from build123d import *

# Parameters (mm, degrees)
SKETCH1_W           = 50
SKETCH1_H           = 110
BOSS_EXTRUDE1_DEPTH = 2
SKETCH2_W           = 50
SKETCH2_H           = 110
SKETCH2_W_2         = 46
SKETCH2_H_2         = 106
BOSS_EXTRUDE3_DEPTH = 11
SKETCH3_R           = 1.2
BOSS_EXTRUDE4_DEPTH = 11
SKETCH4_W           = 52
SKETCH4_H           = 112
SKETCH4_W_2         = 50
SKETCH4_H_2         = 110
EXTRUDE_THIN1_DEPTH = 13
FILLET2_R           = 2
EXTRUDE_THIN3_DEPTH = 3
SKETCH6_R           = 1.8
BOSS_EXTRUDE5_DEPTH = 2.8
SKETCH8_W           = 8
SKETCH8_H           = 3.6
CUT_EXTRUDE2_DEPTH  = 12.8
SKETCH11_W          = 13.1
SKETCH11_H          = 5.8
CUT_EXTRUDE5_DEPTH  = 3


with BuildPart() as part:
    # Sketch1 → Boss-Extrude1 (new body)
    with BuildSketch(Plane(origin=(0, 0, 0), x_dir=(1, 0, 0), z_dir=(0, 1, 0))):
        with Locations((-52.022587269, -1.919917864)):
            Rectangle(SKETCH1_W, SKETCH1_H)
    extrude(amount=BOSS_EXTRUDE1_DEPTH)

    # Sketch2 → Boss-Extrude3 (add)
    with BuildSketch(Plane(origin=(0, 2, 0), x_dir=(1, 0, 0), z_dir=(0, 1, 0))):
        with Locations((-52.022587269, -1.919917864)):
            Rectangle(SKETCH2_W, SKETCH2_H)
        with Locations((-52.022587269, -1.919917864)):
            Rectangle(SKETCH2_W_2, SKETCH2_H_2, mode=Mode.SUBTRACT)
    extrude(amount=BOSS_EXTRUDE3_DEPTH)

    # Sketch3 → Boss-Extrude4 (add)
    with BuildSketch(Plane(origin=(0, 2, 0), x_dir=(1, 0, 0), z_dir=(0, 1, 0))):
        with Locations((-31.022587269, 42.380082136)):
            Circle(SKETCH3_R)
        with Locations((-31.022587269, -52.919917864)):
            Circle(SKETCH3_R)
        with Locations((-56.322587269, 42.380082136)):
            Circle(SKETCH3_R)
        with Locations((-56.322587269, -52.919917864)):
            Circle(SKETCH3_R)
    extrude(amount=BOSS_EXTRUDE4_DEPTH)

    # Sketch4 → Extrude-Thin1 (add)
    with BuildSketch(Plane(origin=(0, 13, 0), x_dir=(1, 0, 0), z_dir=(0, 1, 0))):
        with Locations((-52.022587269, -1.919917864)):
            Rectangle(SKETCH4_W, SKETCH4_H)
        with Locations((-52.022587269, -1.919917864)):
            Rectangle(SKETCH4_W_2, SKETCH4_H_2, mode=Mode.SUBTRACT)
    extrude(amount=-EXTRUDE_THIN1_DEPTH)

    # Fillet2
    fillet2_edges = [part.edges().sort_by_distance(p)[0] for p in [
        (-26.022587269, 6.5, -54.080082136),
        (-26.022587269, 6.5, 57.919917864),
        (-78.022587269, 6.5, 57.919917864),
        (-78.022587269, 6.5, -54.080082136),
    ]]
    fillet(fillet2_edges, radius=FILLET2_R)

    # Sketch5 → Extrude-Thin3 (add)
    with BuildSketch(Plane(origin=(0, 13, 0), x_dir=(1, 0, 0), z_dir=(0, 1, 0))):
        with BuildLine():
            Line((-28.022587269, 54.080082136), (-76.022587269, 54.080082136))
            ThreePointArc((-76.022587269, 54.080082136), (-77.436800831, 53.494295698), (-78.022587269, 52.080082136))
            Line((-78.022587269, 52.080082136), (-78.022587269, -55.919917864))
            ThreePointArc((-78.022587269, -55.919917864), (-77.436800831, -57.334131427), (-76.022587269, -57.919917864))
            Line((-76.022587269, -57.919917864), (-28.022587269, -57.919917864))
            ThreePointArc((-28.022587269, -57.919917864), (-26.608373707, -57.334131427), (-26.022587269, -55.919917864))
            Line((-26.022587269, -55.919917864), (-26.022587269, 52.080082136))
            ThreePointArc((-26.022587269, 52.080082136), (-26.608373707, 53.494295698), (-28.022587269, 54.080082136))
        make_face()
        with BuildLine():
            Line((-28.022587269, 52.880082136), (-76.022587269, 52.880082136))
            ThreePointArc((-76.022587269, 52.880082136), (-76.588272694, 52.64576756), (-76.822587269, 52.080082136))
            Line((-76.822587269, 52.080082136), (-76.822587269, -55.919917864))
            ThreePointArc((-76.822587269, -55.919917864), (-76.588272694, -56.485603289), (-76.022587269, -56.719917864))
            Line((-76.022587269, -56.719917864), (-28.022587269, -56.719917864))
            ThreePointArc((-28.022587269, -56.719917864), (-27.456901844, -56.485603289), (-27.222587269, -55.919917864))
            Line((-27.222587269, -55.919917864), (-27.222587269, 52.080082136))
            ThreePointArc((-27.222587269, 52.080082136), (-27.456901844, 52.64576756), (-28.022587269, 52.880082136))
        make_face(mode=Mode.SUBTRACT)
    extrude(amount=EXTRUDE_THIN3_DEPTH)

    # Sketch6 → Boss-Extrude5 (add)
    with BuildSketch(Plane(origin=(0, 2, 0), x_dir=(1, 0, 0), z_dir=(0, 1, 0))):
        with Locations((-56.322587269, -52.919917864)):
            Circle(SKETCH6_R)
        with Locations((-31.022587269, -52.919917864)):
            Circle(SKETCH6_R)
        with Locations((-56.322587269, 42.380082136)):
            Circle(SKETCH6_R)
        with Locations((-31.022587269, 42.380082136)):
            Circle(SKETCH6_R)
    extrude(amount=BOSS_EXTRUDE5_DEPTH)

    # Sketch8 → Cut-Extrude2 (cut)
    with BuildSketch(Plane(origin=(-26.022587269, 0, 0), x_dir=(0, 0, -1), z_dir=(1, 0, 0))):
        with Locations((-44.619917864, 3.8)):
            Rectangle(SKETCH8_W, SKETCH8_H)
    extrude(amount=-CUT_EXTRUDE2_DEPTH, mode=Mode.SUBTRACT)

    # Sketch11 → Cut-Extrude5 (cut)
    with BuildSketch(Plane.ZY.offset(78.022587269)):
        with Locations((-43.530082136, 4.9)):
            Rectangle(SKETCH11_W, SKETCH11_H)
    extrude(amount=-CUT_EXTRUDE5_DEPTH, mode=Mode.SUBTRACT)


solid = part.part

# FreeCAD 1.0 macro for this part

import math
import FreeCAD as App
import Part
import Sketcher
from FreeCAD import Vector


def edges_at(feature, points):
    """Names of the edges that pass closest to the given points."""
    edges = feature.Shape.Edges
    near = lambda p: min(range(len(edges)), key=lambda i: edges[i].distToShape(Part.Vertex(*p))[0])
    return sorted({f"Edge{near(p) + 1}" for p in points})


def add_polygon(sketch, points):
    """Adds a closed chain of lines whose ends are joined by coincident constraints."""
    first, n = sketch.GeometryCount, len(points)
    for a, b in zip(points, points[1:] + points[:1]):
        sketch.addGeometry(Part.LineSegment(App.Vector(*a, 0), App.Vector(*b, 0)), False)
    for i in range(n):
        sketch.addConstraint(Sketcher.Constraint("Coincident", first + i, 2, first + (i + 1) % n, 1))

doc = App.newDocument("Part")
body = doc.addObject("PartDesign::Body", "Body")

sketch1 = doc.addObject("Sketcher::SketchObject", "Sketch")
body.addObject(sketch1)
sketch1.AttachmentSupport = (doc.XZ_Plane, [""])
sketch1.MapMode = "FlatFace"
add_polygon(sketch1, [(-77, -53), (-77, 57), (-27, 57), (-27, -53)])
sketch1.addConstraint(Sketcher.Constraint("Vertical", 0))
sketch1.addConstraint(Sketcher.Constraint("Horizontal", 1))
sketch1.addConstraint(Sketcher.Constraint("Vertical", 2))
sketch1.addConstraint(Sketcher.Constraint("Horizontal", 3))
sketch1.addConstraint(Sketcher.Constraint("DistanceX", 1, 1, 1, 2, 50.0))
sketch1.addConstraint(Sketcher.Constraint("DistanceY", 0, 1, 0, 2, 110.0))
sketch1.addConstraint(Sketcher.Constraint("DistanceX", 0, 2, -1, 1, 77.022587))
sketch1.addConstraint(Sketcher.Constraint("DistanceY", -1, 1, 0, 2, 56.919918))
pad1 = doc.addObject("PartDesign::Pad", "Pad")
body.addObject(pad1)
pad1.Profile = sketch1
pad1.Length = 2
pad1.Reversed = True

sketch2 = doc.addObject("Sketcher::SketchObject", "Sketch001")
body.addObject(sketch2)
sketch2.AttachmentSupport = (doc.XZ_Plane, [""])
sketch2.MapMode = "FlatFace"
sketch2.AttachmentOffset = App.Placement(Vector(0, 0, -2), App.Rotation())
add_polygon(sketch2, [(-77, -53), (-77, 57), (-27, 57), (-27, -53)])
add_polygon(sketch2, [(-29, 55), (-75, 55), (-75, -51), (-29, -51)])
sketch2.addConstraint(Sketcher.Constraint("Vertical", 0))
sketch2.addConstraint(Sketcher.Constraint("Horizontal", 1))
sketch2.addConstraint(Sketcher.Constraint("Vertical", 2))
sketch2.addConstraint(Sketcher.Constraint("Horizontal", 3))
sketch2.addConstraint(Sketcher.Constraint("Horizontal", 4))
sketch2.addConstraint(Sketcher.Constraint("Vertical", 5))
sketch2.addConstraint(Sketcher.Constraint("Horizontal", 6))
sketch2.addConstraint(Sketcher.Constraint("Vertical", 7))
sketch2.addConstraint(Sketcher.Constraint("DistanceX", 1, 1, 1, 2, 50.0))
sketch2.addConstraint(Sketcher.Constraint("DistanceX", 4, 2, 4, 1, 46.0))
sketch2.addConstraint(Sketcher.Constraint("DistanceY", 0, 1, 0, 2, 110.0))
sketch2.addConstraint(Sketcher.Constraint("DistanceY", 5, 2, 5, 1, 106.0))
sketch2.addConstraint(Sketcher.Constraint("DistanceX", 0, 2, 4, 2, 2.0))
sketch2.addConstraint(Sketcher.Constraint("DistanceY", 4, 2, 0, 2, 2.0))
sketch2.addConstraint(Sketcher.Constraint("DistanceX", 0, 2, -1, 1, 77.022587))
sketch2.addConstraint(Sketcher.Constraint("DistanceY", -1, 1, 0, 2, 56.919918))
pad2 = doc.addObject("PartDesign::Pad", "Pad001")
body.addObject(pad2)
pad2.Profile = sketch2
pad2.Length = 11
pad2.Reversed = True

sketch3 = doc.addObject("Sketcher::SketchObject", "Sketch002")
body.addObject(sketch3)
sketch3.AttachmentSupport = (doc.XZ_Plane, [""])
sketch3.MapMode = "FlatFace"
sketch3.AttachmentOffset = App.Placement(Vector(0, 0, -2), App.Rotation())
sketch3.addGeometry(Part.Circle(Vector(-31, -42.4, 0), Vector(0, 0, 1), 1.2), False)
sketch3.addGeometry(Part.Circle(Vector(-31, 52.9, 0), Vector(0, 0, 1), 1.2), False)
sketch3.addGeometry(Part.Circle(Vector(-56.3, -42.4, 0), Vector(0, 0, 1), 1.2), False)
sketch3.addGeometry(Part.Circle(Vector(-56.3, 52.9, 0), Vector(0, 0, 1), 1.2), False)
sketch3.addConstraint(Sketcher.Constraint("Equal", 0, 1))
sketch3.addConstraint(Sketcher.Constraint("Equal", 1, 2))
sketch3.addConstraint(Sketcher.Constraint("Equal", 2, 3))
sketch3.addConstraint(Sketcher.Constraint("Horizontal", 0, 3, 2, 3))
sketch3.addConstraint(Sketcher.Constraint("Horizontal", 1, 3, 3, 3))
sketch3.addConstraint(Sketcher.Constraint("Vertical", 0, 3, 1, 3))
sketch3.addConstraint(Sketcher.Constraint("Vertical", 2, 3, 3, 3))
sketch3.addConstraint(Sketcher.Constraint("Diameter", 0, 2.4))
sketch3.addConstraint(Sketcher.Constraint("DistanceY", 0, 3, 1, 3, 95.3))
sketch3.addConstraint(Sketcher.Constraint("DistanceX", 2, 3, 0, 3, 25.3))
sketch3.addConstraint(Sketcher.Constraint("DistanceX", 0, 3, -1, 1, 31.022587))
sketch3.addConstraint(Sketcher.Constraint("DistanceY", 0, 3, -1, 1, 42.380082))
pad3 = doc.addObject("PartDesign::Pad", "Pad002")
body.addObject(pad3)
pad3.Profile = sketch3
pad3.Length = 11
pad3.Reversed = True

sketch4 = doc.addObject("Sketcher::SketchObject", "Sketch003")
body.addObject(sketch4)
sketch4.AttachmentSupport = (doc.XZ_Plane, [""])
sketch4.MapMode = "FlatFace"
sketch4.AttachmentOffset = App.Placement(Vector(0, 0, -13), App.Rotation())
add_polygon(sketch4, [(-78, -54), (-78, 58), (-26, 58), (-26, -54)])
add_polygon(sketch4, [(-27, 57), (-77, 57), (-77, -53), (-27, -53)])
sketch4.addConstraint(Sketcher.Constraint("Vertical", 0))
sketch4.addConstraint(Sketcher.Constraint("Horizontal", 1))
sketch4.addConstraint(Sketcher.Constraint("Vertical", 2))
sketch4.addConstraint(Sketcher.Constraint("Horizontal", 3))
sketch4.addConstraint(Sketcher.Constraint("Horizontal", 4))
sketch4.addConstraint(Sketcher.Constraint("Vertical", 5))
sketch4.addConstraint(Sketcher.Constraint("Horizontal", 6))
sketch4.addConstraint(Sketcher.Constraint("Vertical", 7))
sketch4.addConstraint(Sketcher.Constraint("DistanceX", 1, 1, 1, 2, 52.0))
sketch4.addConstraint(Sketcher.Constraint("DistanceX", 4, 2, 4, 1, 50.0))
sketch4.addConstraint(Sketcher.Constraint("DistanceY", 0, 1, 0, 2, 112.0))
sketch4.addConstraint(Sketcher.Constraint("DistanceY", 5, 2, 5, 1, 110.0))
sketch4.addConstraint(Sketcher.Constraint("DistanceX", 0, 2, 4, 2, 1.0))
sketch4.addConstraint(Sketcher.Constraint("DistanceY", 4, 2, 0, 2, 1.0))
sketch4.addConstraint(Sketcher.Constraint("DistanceX", 0, 2, -1, 1, 78.022587))
sketch4.addConstraint(Sketcher.Constraint("DistanceY", -1, 1, 0, 2, 57.919918))
pad4 = doc.addObject("PartDesign::Pad", "Pad003")
body.addObject(pad4)
pad4.Profile = sketch4
pad4.Length = 13
doc.recompute()

fillet = doc.addObject("PartDesign::Fillet", "Fillet")
body.addObject(fillet)
fillet.Base = (pad4, edges_at(pad4, [
    (-26.023, 6.5, -54.08),
    (-26.023, 6.5, 57.92),
    (-78.023, 6.5, 57.92),
    (-78.023, 6.5, -54.08),
]))
fillet.Radius = 2

sketch5 = doc.addObject("Sketcher::SketchObject", "Sketch004")
body.addObject(sketch5)
sketch5.AttachmentSupport = (doc.XZ_Plane, [""])
sketch5.MapMode = "FlatFace"
sketch5.AttachmentOffset = App.Placement(Vector(0, 0, -13), App.Rotation())
sketch5.addGeometry(Part.LineSegment(Vector(-28, -54.1, 0), Vector(-76, -54.1, 0)), False)
sketch5.addGeometry(Part.ArcOfCircle(Part.Circle(Vector(-76, -52.1, 0), Vector(0, 0, 1), 2), math.radians(-180), math.radians(-90)), False)
sketch5.addGeometry(Part.LineSegment(Vector(-78, -52.1, 0), Vector(-78, 55.9, 0)), False)
sketch5.addGeometry(Part.ArcOfCircle(Part.Circle(Vector(-76, 55.9, 0), Vector(0, 0, 1), 2), math.radians(90), math.radians(180)), False)
sketch5.addGeometry(Part.LineSegment(Vector(-76, 57.9, 0), Vector(-28, 57.9, 0)), False)
sketch5.addGeometry(Part.ArcOfCircle(Part.Circle(Vector(-28, 55.9, 0), Vector(0, 0, 1), 2), math.radians(0), math.radians(90)), False)
sketch5.addGeometry(Part.LineSegment(Vector(-26, 55.9, 0), Vector(-26, -52.1, 0)), False)
sketch5.addGeometry(Part.ArcOfCircle(Part.Circle(Vector(-28, -52.1, 0), Vector(0, 0, 1), 2), math.radians(-90), math.radians(0)), False)
sketch5.addGeometry(Part.LineSegment(Vector(-76, -52.9, 0), Vector(-28, -52.9, 0)), False)
sketch5.addGeometry(Part.ArcOfCircle(Part.Circle(Vector(-28, -52.1, 0), Vector(0, 0, 1), 0.8), math.radians(-90), math.radians(0)), False)
sketch5.addGeometry(Part.LineSegment(Vector(-27.2, -52.1, 0), Vector(-27.2, 55.9, 0)), False)
sketch5.addGeometry(Part.ArcOfCircle(Part.Circle(Vector(-28, 55.9, 0), Vector(0, 0, 1), 0.8), math.radians(0), math.radians(90)), False)
sketch5.addGeometry(Part.LineSegment(Vector(-28, 56.7, 0), Vector(-76, 56.7, 0)), False)
sketch5.addGeometry(Part.ArcOfCircle(Part.Circle(Vector(-76, 55.9, 0), Vector(0, 0, 1), 0.8), math.radians(90), math.radians(180)), False)
sketch5.addGeometry(Part.LineSegment(Vector(-76.8, 55.9, 0), Vector(-76.8, -52.1, 0)), False)
sketch5.addGeometry(Part.ArcOfCircle(Part.Circle(Vector(-76, -52.1, 0), Vector(0, 0, 1), 0.8), math.radians(-180), math.radians(-90)), False)
sketch5.addConstraint(Sketcher.Constraint("Tangent", 0, 2, 1, 2))
sketch5.addConstraint(Sketcher.Constraint("Tangent", 1, 1, 2, 1))
sketch5.addConstraint(Sketcher.Constraint("Tangent", 2, 2, 3, 2))
sketch5.addConstraint(Sketcher.Constraint("Tangent", 3, 1, 4, 1))
sketch5.addConstraint(Sketcher.Constraint("Tangent", 4, 2, 5, 2))
sketch5.addConstraint(Sketcher.Constraint("Tangent", 5, 1, 6, 1))
sketch5.addConstraint(Sketcher.Constraint("Tangent", 6, 2, 7, 2))
sketch5.addConstraint(Sketcher.Constraint("Tangent", 7, 1, 0, 1))
sketch5.addConstraint(Sketcher.Constraint("Tangent", 8, 2, 9, 1))
sketch5.addConstraint(Sketcher.Constraint("Tangent", 9, 2, 10, 1))
sketch5.addConstraint(Sketcher.Constraint("Tangent", 10, 2, 11, 1))
sketch5.addConstraint(Sketcher.Constraint("Tangent", 11, 2, 12, 1))
sketch5.addConstraint(Sketcher.Constraint("Tangent", 12, 2, 13, 1))
sketch5.addConstraint(Sketcher.Constraint("Tangent", 13, 2, 14, 1))
sketch5.addConstraint(Sketcher.Constraint("Tangent", 14, 2, 15, 1))
sketch5.addConstraint(Sketcher.Constraint("Tangent", 15, 2, 8, 1))
sketch5.addConstraint(Sketcher.Constraint("Horizontal", 0))
sketch5.addConstraint(Sketcher.Constraint("Vertical", 2))
sketch5.addConstraint(Sketcher.Constraint("Horizontal", 4))
sketch5.addConstraint(Sketcher.Constraint("Vertical", 6))
sketch5.addConstraint(Sketcher.Constraint("Horizontal", 8))
sketch5.addConstraint(Sketcher.Constraint("Vertical", 10))
sketch5.addConstraint(Sketcher.Constraint("Horizontal", 12))
sketch5.addConstraint(Sketcher.Constraint("Vertical", 14))
sketch5.addConstraint(Sketcher.Constraint("Coincident", 9, 3, 7, 3))
sketch5.addConstraint(Sketcher.Constraint("Coincident", 11, 3, 5, 3))
sketch5.addConstraint(Sketcher.Constraint("Coincident", 13, 3, 3, 3))
sketch5.addConstraint(Sketcher.Constraint("Equal", 1, 3))
sketch5.addConstraint(Sketcher.Constraint("Equal", 3, 5))
sketch5.addConstraint(Sketcher.Constraint("Equal", 5, 7))
sketch5.addConstraint(Sketcher.Constraint("Equal", 13, 15))
sketch5.addConstraint(Sketcher.Constraint("Radius", 1, 2.0))
sketch5.addConstraint(Sketcher.Constraint("Radius", 9, 0.8))
sketch5.addConstraint(Sketcher.Constraint("DistanceX", 0, 2, 0, 1, 48.0))
sketch5.addConstraint(Sketcher.Constraint("DistanceY", 2, 1, 2, 2, 108.0))
sketch5.addConstraint(Sketcher.Constraint("DistanceX", 1, 3, -1, 1, 76.022587))
sketch5.addConstraint(Sketcher.Constraint("DistanceY", 1, 3, -1, 1, 52.080082))
pad5 = doc.addObject("PartDesign::Pad", "Pad004")
body.addObject(pad5)
pad5.Profile = sketch5
pad5.Length = 3
pad5.Reversed = True

sketch6 = doc.addObject("Sketcher::SketchObject", "Sketch005")
body.addObject(sketch6)
sketch6.AttachmentSupport = (doc.XZ_Plane, [""])
sketch6.MapMode = "FlatFace"
sketch6.AttachmentOffset = App.Placement(Vector(0, 0, -2), App.Rotation())
sketch6.addGeometry(Part.Circle(Vector(-56.3, 52.9, 0), Vector(0, 0, 1), 1.8), False)
sketch6.addGeometry(Part.Circle(Vector(-31, 52.9, 0), Vector(0, 0, 1), 1.8), False)
sketch6.addGeometry(Part.Circle(Vector(-56.3, -42.4, 0), Vector(0, 0, 1), 1.8), False)
sketch6.addGeometry(Part.Circle(Vector(-31, -42.4, 0), Vector(0, 0, 1), 1.8), False)
sketch6.addConstraint(Sketcher.Constraint("Equal", 0, 1))
sketch6.addConstraint(Sketcher.Constraint("Equal", 1, 2))
sketch6.addConstraint(Sketcher.Constraint("Equal", 2, 3))
sketch6.addConstraint(Sketcher.Constraint("Horizontal", 0, 3, 1, 3))
sketch6.addConstraint(Sketcher.Constraint("Horizontal", 2, 3, 3, 3))
sketch6.addConstraint(Sketcher.Constraint("Vertical", 0, 3, 2, 3))
sketch6.addConstraint(Sketcher.Constraint("Vertical", 1, 3, 3, 3))
sketch6.addConstraint(Sketcher.Constraint("Diameter", 0, 3.6))
sketch6.addConstraint(Sketcher.Constraint("DistanceX", 0, 3, 1, 3, 25.3))
sketch6.addConstraint(Sketcher.Constraint("DistanceY", 2, 3, 0, 3, 95.3))
sketch6.addConstraint(Sketcher.Constraint("DistanceX", 0, 3, -1, 1, 56.322587))
sketch6.addConstraint(Sketcher.Constraint("DistanceY", -1, 1, 0, 3, 52.919918))
pad6 = doc.addObject("PartDesign::Pad", "Pad005")
body.addObject(pad6)
pad6.Profile = sketch6
pad6.Length = 2.8
pad6.Reversed = True

sketch7 = doc.addObject("Sketcher::SketchObject", "Sketch006")
body.addObject(sketch7)
sketch7.AttachmentSupport = (doc.YZ_Plane, [""])
sketch7.MapMode = "FlatFace"
sketch7.AttachmentOffset = App.Placement(Vector(0, 0, -26.022587), App.Rotation())
add_polygon(sketch7, [(5.6, 48.6), (2, 48.6), (2, 40.6), (5.6, 40.6)])
sketch7.addConstraint(Sketcher.Constraint("Horizontal", 0))
sketch7.addConstraint(Sketcher.Constraint("Vertical", 1))
sketch7.addConstraint(Sketcher.Constraint("Horizontal", 2))
sketch7.addConstraint(Sketcher.Constraint("Vertical", 3))
sketch7.addConstraint(Sketcher.Constraint("DistanceY", 1, 2, 1, 1, 8.0))
sketch7.addConstraint(Sketcher.Constraint("DistanceX", 0, 2, 0, 1, 3.6))
sketch7.addConstraint(Sketcher.Constraint("DistanceX", -1, 1, 0, 2, 2.0))
sketch7.addConstraint(Sketcher.Constraint("DistanceY", -1, 1, 0, 2, 48.619918))
pocket1 = doc.addObject("PartDesign::Pocket", "Pocket")
body.addObject(pocket1)
pocket1.Profile = sketch7
pocket1.Length = 12.8

sketch8 = doc.addObject("Sketcher::SketchObject", "Sketch007")
body.addObject(sketch8)
sketch8.AttachmentSupport = (doc.YZ_Plane, [""])
sketch8.MapMode = "FlatFace"
sketch8.AttachmentOffset = App.Placement(Vector(0, 0, -78.022587), App.Rotation())
add_polygon(sketch8, [(8, -50), (2, -50), (2, -37), (8, -37)])
sketch8.addConstraint(Sketcher.Constraint("Horizontal", 0))
sketch8.addConstraint(Sketcher.Constraint("Vertical", 1))
sketch8.addConstraint(Sketcher.Constraint("Horizontal", 2))
sketch8.addConstraint(Sketcher.Constraint("Vertical", 3))
sketch8.addConstraint(Sketcher.Constraint("DistanceX", 0, 2, 0, 1, 5.8))
sketch8.addConstraint(Sketcher.Constraint("DistanceY", 1, 1, 1, 2, 13.1))
sketch8.addConstraint(Sketcher.Constraint("DistanceX", -1, 1, 0, 2, 2.0))
sketch8.addConstraint(Sketcher.Constraint("DistanceY", 0, 2, -1, 1, 50.080082))
pocket2 = doc.addObject("PartDesign::Pocket", "Pocket001")
body.addObject(pocket2)
pocket2.Profile = sketch8
pocket2.Length = 3
pocket2.Reversed = True

doc.recompute()
